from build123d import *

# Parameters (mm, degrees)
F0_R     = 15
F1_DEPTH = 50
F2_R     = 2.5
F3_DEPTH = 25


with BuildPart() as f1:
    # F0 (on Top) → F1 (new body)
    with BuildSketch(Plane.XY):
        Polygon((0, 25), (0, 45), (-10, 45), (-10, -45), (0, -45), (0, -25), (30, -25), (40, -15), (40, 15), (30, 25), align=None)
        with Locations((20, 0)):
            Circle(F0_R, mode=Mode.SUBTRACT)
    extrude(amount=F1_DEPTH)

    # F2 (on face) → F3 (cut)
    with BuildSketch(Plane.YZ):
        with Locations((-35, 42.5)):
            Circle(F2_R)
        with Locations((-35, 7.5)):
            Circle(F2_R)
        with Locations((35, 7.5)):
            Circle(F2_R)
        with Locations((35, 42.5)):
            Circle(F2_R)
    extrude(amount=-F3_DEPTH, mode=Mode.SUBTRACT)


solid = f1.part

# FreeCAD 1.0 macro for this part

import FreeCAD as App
import Part
import Sketcher

V = App.Vector

doc = App.newDocument("Part")
body = doc.addObject("PartDesign::Body", "Body")

sketch1 = body.newObject("Sketcher::SketchObject", "Sketch")
sketch1.AttachmentSupport = (doc.getObject("XY_Plane"), [""])
sketch1.MapMode = "FlatFace"
sketch1.addGeometry([
    Part.LineSegment(V(0, 25, 0), V(0, 45, 0)),
    Part.LineSegment(V(0, 45, 0), V(-10, 45, 0)),
    Part.LineSegment(V(-10, 45, 0), V(-10, -45, 0)),
    Part.LineSegment(V(-10, -45, 0), V(0, -45, 0)),
    Part.LineSegment(V(0, -45, 0), V(0, -25, 0)),
    Part.LineSegment(V(0, -25, 0), V(30, -25, 0)),
    Part.LineSegment(V(30, -25, 0), V(40, -15, 0)),
    Part.LineSegment(V(40, -15, 0), V(40, 15, 0)),
    Part.LineSegment(V(40, 15, 0), V(30, 25, 0)),
    Part.LineSegment(V(30, 25, 0), V(0, 25, 0)),
    Part.Circle(V(20, 0, 0), V(0, 0, 1), 15),
], False)
sketch1.addConstraint([
    Sketcher.Constraint("Coincident", 0, 2, 1, 1),
    Sketcher.Constraint("Coincident", 1, 2, 2, 1),
    Sketcher.Constraint("Coincident", 2, 2, 3, 1),
    Sketcher.Constraint("Coincident", 3, 2, 4, 1),
    Sketcher.Constraint("Coincident", 4, 2, 5, 1),
    Sketcher.Constraint("Coincident", 5, 2, 6, 1),
    Sketcher.Constraint("Coincident", 6, 2, 7, 1),
    Sketcher.Constraint("Coincident", 7, 2, 8, 1),
    Sketcher.Constraint("Coincident", 8, 2, 9, 1),
    Sketcher.Constraint("Coincident", 9, 2, 0, 1),
    Sketcher.Constraint("Vertical", 0),
    Sketcher.Constraint("Horizontal", 1),
    Sketcher.Constraint("Vertical", 2),
    Sketcher.Constraint("Horizontal", 3),
    Sketcher.Constraint("Vertical", 4),
    Sketcher.Constraint("Horizontal", 5),
    Sketcher.Constraint("Vertical", 7),
    Sketcher.Constraint("Horizontal", 9),
    Sketcher.Constraint("Symmetric", 0, 2, 3, 2, -1, 1),
    Sketcher.Constraint("Symmetric", 5, 2, 8, 2, -1),
    Sketcher.Constraint("PointOnObject", 10, 3, -1),
    Sketcher.Constraint("PointOnObject", 0, 2, -2),
    Sketcher.Constraint("Perpendicular", 6, 8),
    Sketcher.Constraint("Equal", 9, 7),
    Sketcher.Constraint("Equal", 6, 8),
    Sketcher.Constraint("Diameter", 10, 30.0),
    Sketcher.Constraint("DistanceX", 1, 2, 1, 1, 10.0),
    Sketcher.Constraint("DistanceX", 5, 1, 5, 2, 30.0),
    Sketcher.Constraint("DistanceY", 0, 1, 0, 2, 20.0),
    Sketcher.Constraint("DistanceY", 2, 2, 2, 1, 90.0),
    Sketcher.Constraint("DistanceX", -1, 1, 10, 3, 20.0),
])
pad1 = body.newObject("PartDesign::Pad", "Pad")
pad1.Profile = sketch1
pad1.Length = 50

sketch2 = body.newObject("Sketcher::SketchObject", "Sketch001")
sketch2.AttachmentSupport = (doc.getObject("YZ_Plane"), [""])
sketch2.MapMode = "FlatFace"
sketch2.addGeometry([
    Part.Circle(V(-35, 42.5, 0), V(0, 0, 1), 2.5),
    Part.Circle(V(-35, 7.5, 0), V(0, 0, 1), 2.5),
    Part.Circle(V(35, 7.5, 0), V(0, 0, 1), 2.5),
    Part.Circle(V(35, 42.5, 0), V(0, 0, 1), 2.5),
], False)
sketch2.addConstraint([
    Sketcher.Constraint("Equal", 0, 1),
    Sketcher.Constraint("Equal", 1, 2),
    Sketcher.Constraint("Equal", 2, 3),
    Sketcher.Constraint("Symmetric", 1, 3, 2, 3, -2),
    Sketcher.Constraint("Symmetric", 0, 3, 3, 3, -2),
    Sketcher.Constraint("Vertical", 0, 3, 1, 3),
    Sketcher.Constraint("Diameter", 0, 5.0),
    Sketcher.Constraint("DistanceX", 0, 3, -1, 1, 35.0),
    Sketcher.Constraint("DistanceY", 1, 3, 0, 3, 35.0),
    Sketcher.Constraint("DistanceY", -1, 1, 0, 3, 42.5),
])
pocket1 = body.newObject("PartDesign::Pocket", "Pocket")
pocket1.Profile = sketch2
pocket1.Length = 25

doc.recompute()
